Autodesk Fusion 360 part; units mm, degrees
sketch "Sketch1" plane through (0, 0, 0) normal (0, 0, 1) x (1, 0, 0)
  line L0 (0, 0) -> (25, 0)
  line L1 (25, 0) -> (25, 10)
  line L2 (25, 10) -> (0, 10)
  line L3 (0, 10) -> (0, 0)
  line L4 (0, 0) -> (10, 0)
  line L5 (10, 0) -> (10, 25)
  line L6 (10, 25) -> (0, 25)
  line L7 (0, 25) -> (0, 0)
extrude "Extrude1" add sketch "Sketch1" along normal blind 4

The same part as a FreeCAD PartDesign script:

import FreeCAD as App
import Part
import Sketcher
from FreeCAD import Vector
Q = App.Units.Quantity


def add_polygon(sketch, points):
    """Adds a closed chain of lines whose ends are joined by coincident constraints."""
    first, n = sketch.GeometryCount, len(points)
    for a, b in zip(points, points[1:] + points[:1]):
        sketch.addGeometry(Part.LineSegment(App.Vector(*a, 0), App.Vector(*b, 0)), False)
    for i in range(n):
        sketch.addConstraint(Sketcher.Constraint("Coincident", first + i, 2, first + (i + 1) % n, 1))

doc = App.newDocument("Part")
body = doc.addObject("PartDesign::Body", "Body")

sketch1 = body.newObject("Sketcher::SketchObject", "Sketch")
sketch1.AttachmentSupport = (doc.getObject("XY_Plane"), [""])
sketch1.MapMode = "FlatFace"
add_polygon(sketch1, [(0, 0), (25, 0), (25, 10), (10, 10), (10, 25), (0, 25)])
sketch1.addConstraint(Sketcher.Constraint("Horizontal", 0))
sketch1.addConstraint(Sketcher.Constraint("Vertical", 1))
sketch1.addConstraint(Sketcher.Constraint("Horizontal", 2))
sketch1.addConstraint(Sketcher.Constraint("Vertical", 3))
sketch1.addConstraint(Sketcher.Constraint("Horizontal", 4))
sketch1.addConstraint(Sketcher.Constraint("Vertical", 5))
sketch1.addConstraint(Sketcher.Constraint("Coincident", 5, 2, -1, 1))
sketch1.addConstraint(Sketcher.Constraint("Equal", 4, 1))
sketch1.addConstraint(Sketcher.Constraint("Equal", 2, 3))
sketch1.addConstraint(Sketcher.Constraint("DistanceX", 0, 1, 0, 2, Q("25 mm")))
sketch1.addConstraint(Sketcher.Constraint("DistanceX", 2, 2, 2, 1, Q("15 mm")))
pad1 = body.newObject("PartDesign::Pad", "Pad")
pad1.Profile = sketch1
pad1.Length = 4

doc.recompute()
